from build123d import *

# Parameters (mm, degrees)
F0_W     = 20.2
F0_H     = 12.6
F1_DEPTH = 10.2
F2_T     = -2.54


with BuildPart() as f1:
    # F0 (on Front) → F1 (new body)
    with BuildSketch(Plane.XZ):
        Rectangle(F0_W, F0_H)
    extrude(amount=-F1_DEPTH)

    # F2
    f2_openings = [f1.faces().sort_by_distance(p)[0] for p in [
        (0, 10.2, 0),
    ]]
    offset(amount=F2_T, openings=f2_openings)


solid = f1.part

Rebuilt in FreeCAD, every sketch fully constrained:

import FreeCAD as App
import Part
import Sketcher

V = App.Vector


def faces_at(feature, points):
    """Names of the faces that lie closest to the given points."""
    faces = feature.Shape.Faces
    near = lambda p: min(range(len(faces)), key=lambda i: faces[i].distToShape(Part.Vertex(*p))[0])
    return sorted({f"Face{near(p) + 1}" for p in points})

doc = App.newDocument("Part")
params = doc.addObject("Spreadsheet::Sheet", "Params")
for row, (alias, value) in enumerate([
    ("sketch1_width", "20.2 mm"),
    ("sketch1_height", "12.6 mm"),
    ("pad1_length", "10.2 mm"),
    ("thickness_wall", "2.54 mm"),
], start=1):
    params.set(f"A{row}", alias)
    params.set(f"B{row}", "=" + value)
    params.setAlias(f"B{row}", alias)

body = doc.addObject("PartDesign::Body", "Body")

# Sketch on XZ plane
sketch1 = body.newObject("Sketcher::SketchObject", "Sketch")
sketch1.AttachmentSupport = (doc.getObject("XZ_Plane"), [""])
sketch1.MapMode = "FlatFace"
sketch1.addGeometry([
    Part.LineSegment(V(-10, 6, 0), V(-10, -6, 0)),
    Part.LineSegment(V(-10, -6, 0), V(10, -6, 0)),
    Part.LineSegment(V(10, -6, 0), V(10, 6, 0)),
    Part.LineSegment(V(10, 6, 0), V(-10, 6, 0)),
], False)
sketch1.addConstraint([
    Sketcher.Constraint("Coincident", 0, 2, 1, 1),
    Sketcher.Constraint("Coincident", 1, 2, 2, 1),
    Sketcher.Constraint("Coincident", 2, 2, 3, 1),
    Sketcher.Constraint("Coincident", 3, 2, 0, 1),
    Sketcher.Constraint("Vertical", 0),
    Sketcher.Constraint("Horizontal", 1),
    Sketcher.Constraint("Vertical", 2),
    Sketcher.Constraint("Horizontal", 3),
    Sketcher.Constraint("Symmetric", 0, 2, 2, 2, -1, 1),
    Sketcher.Constraint("DistanceX", 1, 1, 1, 2, 20.2),
    Sketcher.Constraint("DistanceY", 0, 2, 0, 1, 12.6),
])
sketch1.setExpression("Constraints[9]", "Params.sketch1_width")
sketch1.setExpression("Constraints[10]", "Params.sketch1_height")
pad1 = body.newObject("PartDesign::Pad", "Pad")
pad1.Profile = sketch1
pad1.setExpression("Length", "Params.pad1_length")
pad1.Reversed = True
doc.recompute()

thickness = body.newObject("PartDesign::Thickness", "Thickness")
thickness.Base = (pad1, faces_at(pad1, [(0, 10.2, 0)]))
thickness.setExpression("Value", "Params.thickness_wall")
thickness.Reversed = True
thickness.Join = "Arc"

doc.recompute()
